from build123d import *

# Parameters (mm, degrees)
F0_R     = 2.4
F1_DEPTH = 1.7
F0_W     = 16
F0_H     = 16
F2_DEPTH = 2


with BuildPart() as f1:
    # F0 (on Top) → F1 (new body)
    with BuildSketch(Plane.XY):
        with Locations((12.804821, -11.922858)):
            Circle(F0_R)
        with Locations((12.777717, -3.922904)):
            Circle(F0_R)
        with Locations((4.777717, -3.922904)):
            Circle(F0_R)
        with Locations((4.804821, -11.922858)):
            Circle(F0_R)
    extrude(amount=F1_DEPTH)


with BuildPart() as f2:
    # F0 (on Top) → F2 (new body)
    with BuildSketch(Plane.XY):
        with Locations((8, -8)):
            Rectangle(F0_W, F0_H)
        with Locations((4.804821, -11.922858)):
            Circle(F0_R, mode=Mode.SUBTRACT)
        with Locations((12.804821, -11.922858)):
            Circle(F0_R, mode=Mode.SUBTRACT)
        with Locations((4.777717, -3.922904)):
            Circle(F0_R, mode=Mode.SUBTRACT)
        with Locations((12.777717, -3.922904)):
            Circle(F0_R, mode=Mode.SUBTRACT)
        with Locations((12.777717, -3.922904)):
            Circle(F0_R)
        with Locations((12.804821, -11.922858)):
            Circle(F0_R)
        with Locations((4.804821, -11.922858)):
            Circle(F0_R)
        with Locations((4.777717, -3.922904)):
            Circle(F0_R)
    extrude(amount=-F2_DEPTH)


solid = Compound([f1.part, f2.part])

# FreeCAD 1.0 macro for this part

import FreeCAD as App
import Part
import Sketcher
from FreeCAD import Vector
Q = App.Units.Quantity

doc = App.newDocument("Part")
params = doc.addObject("Spreadsheet::Sheet", "Params")
for row, (alias, value) in enumerate([
    ("sketch1_diameter", "4.8 mm"),
    ("pad1_length", "1.7 mm"),
    ("sketch2_width", "16 mm"),
    ("pad2_length", "2 mm"),
], start=1):
    params.set(f"A{row}", alias)
    params.set(f"B{row}", "=" + value)
    params.setAlias(f"B{row}", alias)

body = doc.addObject("PartDesign::Body", "Body")
body.AllowCompound = True

# Sketch on XY plane
sketch1 = body.newObject("Sketcher::SketchObject", "Sketch")
sketch1.AttachmentSupport = (doc.getObject("XY_Plane"), [""])
sketch1.MapMode = "FlatFace"
sketch1.addGeometry(Part.Circle(Vector(12.8, -11.9, 0), Vector(0, 0, 1), 2.4), False)
sketch1.addGeometry(Part.Circle(Vector(12.8, -3.9, 0), Vector(0, 0, 1), 2.4), False)
sketch1.addGeometry(Part.Circle(Vector(4.8, -3.9, 0), Vector(0, 0, 1), 2.4), False)
sketch1.addGeometry(Part.Circle(Vector(4.8, -11.9, 0), Vector(0, 0, 1), 2.4), False)
sketch1.addConstraint(Sketcher.Constraint("Equal", 0, 1))
sketch1.addConstraint(Sketcher.Constraint("Equal", 1, 2))
sketch1.addConstraint(Sketcher.Constraint("Equal", 2, 3))
sketch1.addConstraint(Sketcher.Constraint("Horizontal", 1, 3, 2, 3))
sketch1.addConstraint(Sketcher.Constraint("Horizontal", 0, 3, 3, 3))
sketch1.addConstraint(Sketcher.Constraint("Diameter", 0, Q("4.8 mm")))
sketch1.addConstraint(Sketcher.Constraint("DistanceX", 2, 3, 1, 3, Q("8 mm")))
sketch1.addConstraint(Sketcher.Constraint("DistanceX", 3, 3, 0, 3, Q("8 mm")))
sketch1.addConstraint(Sketcher.Constraint("DistanceX", -1, 1, 0, 3, Q("12.804821 mm")))
sketch1.addConstraint(Sketcher.Constraint("DistanceY", 0, 3, -1, 1, Q("11.922858 mm")))
sketch1.addConstraint(Sketcher.Constraint("DistanceX", -1, 1, 1, 3, Q("12.777717 mm")))
sketch1.addConstraint(Sketcher.Constraint("DistanceY", 1, 3, -1, 1, Q("3.922904 mm")))
sketch1.setExpression("Constraints[5]", "Params.sketch1_diameter")
pad1 = body.newObject("PartDesign::Pad", "Pad")
pad1.Profile = sketch1
pad1.setExpression("Length", "Params.pad1_length")
body2 = doc.addObject("PartDesign::Body", "Body001")

# Sketch on XY plane
sketch2 = body2.newObject("Sketcher::SketchObject", "Sketch001")
sketch2.AttachmentSupport = (doc.getObject("XY_Plane001"), [""])
sketch2.MapMode = "FlatFace"
sketch2.addGeometry(Part.LineSegment(Vector(0, 0, 0), Vector(0, -16, 0)), False)
sketch2.addGeometry(Part.LineSegment(Vector(0, -16, 0), Vector(16, -16, 0)), False)
sketch2.addGeometry(Part.LineSegment(Vector(16, -16, 0), Vector(16, 0, 0)), False)
sketch2.addGeometry(Part.LineSegment(Vector(16, 0, 0), Vector(0, 0, 0)), False)
sketch2.addConstraint(Sketcher.Constraint("Coincident", 0, 2, 1, 1))
sketch2.addConstraint(Sketcher.Constraint("Coincident", 1, 2, 2, 1))
sketch2.addConstraint(Sketcher.Constraint("Coincident", 2, 2, 3, 1))
sketch2.addConstraint(Sketcher.Constraint("Coincident", 3, 2, 0, 1))
sketch2.addConstraint(Sketcher.Constraint("Vertical", 0))
sketch2.addConstraint(Sketcher.Constraint("Horizontal", 1))
sketch2.addConstraint(Sketcher.Constraint("Vertical", 2))
sketch2.addConstraint(Sketcher.Constraint("Horizontal", 3))
sketch2.addConstraint(Sketcher.Constraint("Coincident", 3, 2, -1, 1))
sketch2.addConstraint(Sketcher.Constraint("Equal", 3, 0))
sketch2.addConstraint(Sketcher.Constraint("DistanceX", 1, 1, 1, 2, Q("16 mm")))
sketch2.setExpression("Constraints[10]", "Params.sketch2_width")
pad2 = body2.newObject("PartDesign::Pad", "Pad001")
pad2.Profile = sketch2
pad2.setExpression("Length", "Params.pad2_length")
pad2.Reversed = True

doc.recompute()
